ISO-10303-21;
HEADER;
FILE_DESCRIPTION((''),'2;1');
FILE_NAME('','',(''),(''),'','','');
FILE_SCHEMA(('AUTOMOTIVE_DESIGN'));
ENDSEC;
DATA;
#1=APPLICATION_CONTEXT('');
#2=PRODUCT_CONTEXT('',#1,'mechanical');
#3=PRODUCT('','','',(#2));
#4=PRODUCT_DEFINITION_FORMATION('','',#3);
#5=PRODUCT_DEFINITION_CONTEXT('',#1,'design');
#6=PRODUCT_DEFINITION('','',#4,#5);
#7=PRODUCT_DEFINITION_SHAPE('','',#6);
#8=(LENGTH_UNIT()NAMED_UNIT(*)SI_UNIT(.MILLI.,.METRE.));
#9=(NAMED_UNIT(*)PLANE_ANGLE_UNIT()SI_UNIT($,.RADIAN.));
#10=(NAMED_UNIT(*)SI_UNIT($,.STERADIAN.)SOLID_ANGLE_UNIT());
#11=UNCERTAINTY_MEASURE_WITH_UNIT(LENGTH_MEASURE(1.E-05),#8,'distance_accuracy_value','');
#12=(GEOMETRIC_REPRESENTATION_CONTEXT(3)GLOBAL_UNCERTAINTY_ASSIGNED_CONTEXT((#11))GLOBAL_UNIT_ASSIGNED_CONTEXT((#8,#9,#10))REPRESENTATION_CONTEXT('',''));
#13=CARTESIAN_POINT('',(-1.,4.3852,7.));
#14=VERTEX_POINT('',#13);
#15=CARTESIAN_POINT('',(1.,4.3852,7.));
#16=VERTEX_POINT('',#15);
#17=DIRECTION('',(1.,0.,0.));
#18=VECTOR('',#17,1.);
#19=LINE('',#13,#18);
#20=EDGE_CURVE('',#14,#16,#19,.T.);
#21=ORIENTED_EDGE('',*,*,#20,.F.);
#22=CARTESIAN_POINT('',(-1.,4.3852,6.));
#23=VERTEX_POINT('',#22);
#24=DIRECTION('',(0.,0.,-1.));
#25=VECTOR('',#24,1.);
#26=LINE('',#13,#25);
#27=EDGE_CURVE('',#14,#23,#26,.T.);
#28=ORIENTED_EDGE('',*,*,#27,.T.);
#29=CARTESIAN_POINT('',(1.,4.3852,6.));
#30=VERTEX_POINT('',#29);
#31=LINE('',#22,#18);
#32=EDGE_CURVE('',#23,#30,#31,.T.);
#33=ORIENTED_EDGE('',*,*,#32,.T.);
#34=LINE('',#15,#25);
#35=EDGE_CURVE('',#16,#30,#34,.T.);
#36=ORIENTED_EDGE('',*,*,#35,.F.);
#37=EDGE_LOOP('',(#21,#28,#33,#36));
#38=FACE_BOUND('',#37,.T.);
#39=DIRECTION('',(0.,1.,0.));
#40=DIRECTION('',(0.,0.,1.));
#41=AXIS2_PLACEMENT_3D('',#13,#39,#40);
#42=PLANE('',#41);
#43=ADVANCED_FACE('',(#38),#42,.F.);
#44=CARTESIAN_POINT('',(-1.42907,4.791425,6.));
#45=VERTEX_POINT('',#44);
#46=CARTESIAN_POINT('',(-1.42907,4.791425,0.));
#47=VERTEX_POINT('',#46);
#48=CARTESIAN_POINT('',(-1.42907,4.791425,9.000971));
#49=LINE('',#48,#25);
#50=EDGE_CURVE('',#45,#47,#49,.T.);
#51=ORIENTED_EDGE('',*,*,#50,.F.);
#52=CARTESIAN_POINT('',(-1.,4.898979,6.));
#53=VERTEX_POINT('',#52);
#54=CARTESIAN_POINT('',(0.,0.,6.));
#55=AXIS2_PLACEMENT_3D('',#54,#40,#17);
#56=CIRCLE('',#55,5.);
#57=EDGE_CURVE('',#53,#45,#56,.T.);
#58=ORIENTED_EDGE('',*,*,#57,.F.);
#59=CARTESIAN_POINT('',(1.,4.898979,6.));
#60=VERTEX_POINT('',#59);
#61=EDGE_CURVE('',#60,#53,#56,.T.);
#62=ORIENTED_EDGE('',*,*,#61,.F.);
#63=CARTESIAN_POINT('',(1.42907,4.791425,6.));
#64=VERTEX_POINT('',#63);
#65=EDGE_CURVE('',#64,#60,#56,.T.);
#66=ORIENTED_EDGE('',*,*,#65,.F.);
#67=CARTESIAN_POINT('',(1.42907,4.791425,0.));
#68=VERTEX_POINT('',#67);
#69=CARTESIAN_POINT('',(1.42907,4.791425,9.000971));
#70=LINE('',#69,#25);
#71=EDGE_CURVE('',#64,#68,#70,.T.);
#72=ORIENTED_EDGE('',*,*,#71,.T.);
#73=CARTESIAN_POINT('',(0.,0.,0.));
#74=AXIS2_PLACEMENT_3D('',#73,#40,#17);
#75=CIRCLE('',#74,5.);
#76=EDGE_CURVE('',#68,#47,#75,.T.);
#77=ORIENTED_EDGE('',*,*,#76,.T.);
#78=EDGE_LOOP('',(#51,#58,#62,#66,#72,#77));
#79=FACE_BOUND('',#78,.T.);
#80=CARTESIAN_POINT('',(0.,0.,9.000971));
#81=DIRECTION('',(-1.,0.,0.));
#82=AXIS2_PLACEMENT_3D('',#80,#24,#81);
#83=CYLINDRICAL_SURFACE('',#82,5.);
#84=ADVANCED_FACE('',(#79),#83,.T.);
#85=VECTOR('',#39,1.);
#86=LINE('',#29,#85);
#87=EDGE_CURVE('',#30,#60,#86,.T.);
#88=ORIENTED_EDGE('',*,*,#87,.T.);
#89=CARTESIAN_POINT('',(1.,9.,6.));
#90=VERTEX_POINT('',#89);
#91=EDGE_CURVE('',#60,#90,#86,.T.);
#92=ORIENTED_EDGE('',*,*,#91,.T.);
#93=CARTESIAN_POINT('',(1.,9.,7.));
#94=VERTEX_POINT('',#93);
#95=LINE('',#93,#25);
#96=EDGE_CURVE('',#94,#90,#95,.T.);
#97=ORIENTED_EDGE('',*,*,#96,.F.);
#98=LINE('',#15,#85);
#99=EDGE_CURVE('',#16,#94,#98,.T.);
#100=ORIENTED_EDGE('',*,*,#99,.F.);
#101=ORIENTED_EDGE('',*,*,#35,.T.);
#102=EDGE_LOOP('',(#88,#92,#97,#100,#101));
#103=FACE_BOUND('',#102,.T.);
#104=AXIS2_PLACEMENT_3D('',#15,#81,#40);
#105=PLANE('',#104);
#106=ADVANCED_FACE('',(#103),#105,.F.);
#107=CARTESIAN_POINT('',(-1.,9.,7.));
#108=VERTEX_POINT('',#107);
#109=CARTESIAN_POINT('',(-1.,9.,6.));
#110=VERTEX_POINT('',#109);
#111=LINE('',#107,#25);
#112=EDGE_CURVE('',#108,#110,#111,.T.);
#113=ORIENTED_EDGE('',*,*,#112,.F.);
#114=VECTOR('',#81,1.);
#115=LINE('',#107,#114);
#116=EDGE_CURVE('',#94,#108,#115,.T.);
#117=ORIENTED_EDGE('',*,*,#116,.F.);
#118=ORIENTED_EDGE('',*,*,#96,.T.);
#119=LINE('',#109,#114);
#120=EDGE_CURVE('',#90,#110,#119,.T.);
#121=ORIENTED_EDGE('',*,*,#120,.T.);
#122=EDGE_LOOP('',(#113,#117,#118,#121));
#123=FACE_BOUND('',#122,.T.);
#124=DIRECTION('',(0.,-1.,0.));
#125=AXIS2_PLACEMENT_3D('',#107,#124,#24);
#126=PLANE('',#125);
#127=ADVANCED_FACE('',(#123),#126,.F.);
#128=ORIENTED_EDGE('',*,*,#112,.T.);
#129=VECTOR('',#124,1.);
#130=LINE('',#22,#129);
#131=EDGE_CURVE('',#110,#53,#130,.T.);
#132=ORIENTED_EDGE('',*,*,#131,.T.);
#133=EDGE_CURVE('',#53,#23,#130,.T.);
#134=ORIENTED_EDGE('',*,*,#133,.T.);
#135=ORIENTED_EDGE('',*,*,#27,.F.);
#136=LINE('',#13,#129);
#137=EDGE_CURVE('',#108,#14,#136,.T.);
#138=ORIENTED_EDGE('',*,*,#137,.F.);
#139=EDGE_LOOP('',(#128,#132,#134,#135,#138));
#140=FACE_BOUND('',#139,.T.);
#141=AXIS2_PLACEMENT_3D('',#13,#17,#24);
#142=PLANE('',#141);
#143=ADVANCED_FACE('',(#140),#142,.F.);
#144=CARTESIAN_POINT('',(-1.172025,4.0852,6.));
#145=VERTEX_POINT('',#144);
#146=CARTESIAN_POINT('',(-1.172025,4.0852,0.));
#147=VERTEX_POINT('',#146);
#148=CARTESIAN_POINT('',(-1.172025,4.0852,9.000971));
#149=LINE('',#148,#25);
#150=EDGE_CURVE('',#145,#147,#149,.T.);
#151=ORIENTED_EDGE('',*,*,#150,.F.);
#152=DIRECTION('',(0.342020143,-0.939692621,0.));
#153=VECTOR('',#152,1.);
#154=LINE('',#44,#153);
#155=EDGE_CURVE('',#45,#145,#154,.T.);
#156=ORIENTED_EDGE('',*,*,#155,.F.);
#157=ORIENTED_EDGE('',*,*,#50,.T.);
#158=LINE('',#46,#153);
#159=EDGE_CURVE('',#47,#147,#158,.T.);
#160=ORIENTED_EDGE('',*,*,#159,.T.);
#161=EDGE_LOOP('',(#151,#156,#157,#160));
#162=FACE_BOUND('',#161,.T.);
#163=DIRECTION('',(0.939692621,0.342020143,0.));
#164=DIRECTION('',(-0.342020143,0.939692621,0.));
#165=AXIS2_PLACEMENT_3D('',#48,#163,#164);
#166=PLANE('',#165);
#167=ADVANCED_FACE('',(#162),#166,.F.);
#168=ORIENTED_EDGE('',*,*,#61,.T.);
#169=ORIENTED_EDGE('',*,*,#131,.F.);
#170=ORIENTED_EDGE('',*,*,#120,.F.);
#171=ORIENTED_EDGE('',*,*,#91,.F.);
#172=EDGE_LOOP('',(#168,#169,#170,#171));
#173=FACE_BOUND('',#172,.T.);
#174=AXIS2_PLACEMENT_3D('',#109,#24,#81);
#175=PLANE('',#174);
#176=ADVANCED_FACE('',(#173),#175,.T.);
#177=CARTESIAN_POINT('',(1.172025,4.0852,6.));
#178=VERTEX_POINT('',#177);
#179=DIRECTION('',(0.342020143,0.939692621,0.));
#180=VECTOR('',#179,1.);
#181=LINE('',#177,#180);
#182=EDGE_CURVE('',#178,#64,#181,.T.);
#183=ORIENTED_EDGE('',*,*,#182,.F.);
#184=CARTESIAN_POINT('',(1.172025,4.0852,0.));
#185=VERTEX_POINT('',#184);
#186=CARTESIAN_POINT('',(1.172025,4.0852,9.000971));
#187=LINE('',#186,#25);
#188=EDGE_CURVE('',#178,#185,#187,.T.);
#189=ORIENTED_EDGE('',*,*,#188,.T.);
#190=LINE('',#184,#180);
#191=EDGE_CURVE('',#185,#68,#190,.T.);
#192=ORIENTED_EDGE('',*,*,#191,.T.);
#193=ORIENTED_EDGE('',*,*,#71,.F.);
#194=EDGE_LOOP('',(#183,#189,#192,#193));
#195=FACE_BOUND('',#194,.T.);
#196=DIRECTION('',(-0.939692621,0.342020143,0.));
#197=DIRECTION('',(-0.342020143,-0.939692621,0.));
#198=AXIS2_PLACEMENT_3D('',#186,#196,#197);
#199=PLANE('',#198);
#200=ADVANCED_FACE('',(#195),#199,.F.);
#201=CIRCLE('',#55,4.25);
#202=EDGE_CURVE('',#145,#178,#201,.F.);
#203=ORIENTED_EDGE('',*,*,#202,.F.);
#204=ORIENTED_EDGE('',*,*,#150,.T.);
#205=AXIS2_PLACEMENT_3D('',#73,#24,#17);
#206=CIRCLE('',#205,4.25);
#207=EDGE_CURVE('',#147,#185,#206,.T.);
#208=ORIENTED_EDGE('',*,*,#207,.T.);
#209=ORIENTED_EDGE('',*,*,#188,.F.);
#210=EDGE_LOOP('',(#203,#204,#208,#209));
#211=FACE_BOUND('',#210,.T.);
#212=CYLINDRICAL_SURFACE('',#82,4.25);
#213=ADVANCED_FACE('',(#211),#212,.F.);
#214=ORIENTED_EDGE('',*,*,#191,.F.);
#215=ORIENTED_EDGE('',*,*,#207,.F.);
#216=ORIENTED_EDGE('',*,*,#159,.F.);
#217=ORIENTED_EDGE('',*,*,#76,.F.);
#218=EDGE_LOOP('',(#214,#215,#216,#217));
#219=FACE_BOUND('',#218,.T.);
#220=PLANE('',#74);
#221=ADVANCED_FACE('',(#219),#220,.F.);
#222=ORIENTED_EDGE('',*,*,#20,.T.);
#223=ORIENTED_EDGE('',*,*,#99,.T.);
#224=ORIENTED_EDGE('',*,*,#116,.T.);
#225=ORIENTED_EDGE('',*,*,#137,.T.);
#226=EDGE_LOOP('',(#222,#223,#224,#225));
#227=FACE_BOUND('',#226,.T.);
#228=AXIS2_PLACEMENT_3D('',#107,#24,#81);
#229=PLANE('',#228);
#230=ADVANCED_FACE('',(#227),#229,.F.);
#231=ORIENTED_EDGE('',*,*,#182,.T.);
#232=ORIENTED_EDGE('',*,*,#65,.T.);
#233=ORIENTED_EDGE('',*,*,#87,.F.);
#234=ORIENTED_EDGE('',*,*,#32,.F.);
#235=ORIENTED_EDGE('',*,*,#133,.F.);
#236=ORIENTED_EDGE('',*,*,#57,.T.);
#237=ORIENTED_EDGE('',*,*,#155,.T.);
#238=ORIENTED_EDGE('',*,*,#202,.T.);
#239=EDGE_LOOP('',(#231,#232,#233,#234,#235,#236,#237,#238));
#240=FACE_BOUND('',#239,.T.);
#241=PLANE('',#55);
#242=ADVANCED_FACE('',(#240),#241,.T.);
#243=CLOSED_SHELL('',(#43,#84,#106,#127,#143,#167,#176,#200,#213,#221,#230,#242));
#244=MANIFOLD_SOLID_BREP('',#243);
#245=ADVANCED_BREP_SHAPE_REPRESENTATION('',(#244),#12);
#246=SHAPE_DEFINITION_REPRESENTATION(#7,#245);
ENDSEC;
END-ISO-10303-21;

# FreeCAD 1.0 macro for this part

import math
import FreeCAD as App
import Part
import Sketcher
from FreeCAD import Vector
Q = App.Units.Quantity

doc = App.newDocument("Part")
body = doc.addObject("PartDesign::Body", "Body")

# Sketch on XY plane
sketch1 = body.newObject("Sketcher::SketchObject", "Sketch")
sketch1.AttachmentSupport = (doc.getObject("XY_Plane"), [""])
sketch1.MapMode = "FlatFace"
sketch1.addGeometry([
    Part.LineSegment(Vector(-1.4, 4.8, 0), Vector(-1.2, 4.1, 0)),
    Part.ArcOfCircle(Part.Circle(Vector(0, 0, 0), Vector(0, 0, 1), 4.2), math.radians(74), math.radians(106)),
    Part.LineSegment(Vector(1.2, 4.1, 0), Vector(1.4, 4.8, 0)),
    Part.ArcOfCircle(Part.Circle(Vector(0, 0, 0), Vector(0, 0, 1), 5), math.radians(73), math.radians(107)),
], False)
sketch1.addConstraint([
    Sketcher.Constraint("Coincident", 0, 2, 1, 2),
    Sketcher.Constraint("Coincident", 1, 1, 2, 1),
    Sketcher.Constraint("Coincident", 2, 2, 3, 1),
    Sketcher.Constraint("Coincident", 3, 2, 0, 1),
    Sketcher.Constraint("Coincident", 1, 3, -1, 1),
    Sketcher.Constraint("Coincident", 3, 3, -1, 1),
    Sketcher.Constraint("Horizontal", 0, 2, 1, 1),
    Sketcher.Constraint("Horizontal", 2, 2, 3, 2),
    Sketcher.Constraint("Radius", 3, Q("5 mm")),
    Sketcher.Constraint("Angle", 0, Q("-70 deg")),
    Sketcher.Constraint("Radius", 1, Q("4.25 mm")),
    Sketcher.Constraint("DistanceY", -1, 1, 0, 2, Q("4.0852 mm")),
])
pad1 = body.newObject("PartDesign::Pad", "Pad")
pad1.Profile = sketch1
pad1.Length = 6

# Sketch on XY plane
sketch2 = body.newObject("Sketcher::SketchObject", "Sketch001")
sketch2.AttachmentSupport = (doc.getObject("XY_Plane"), [""])
sketch2.MapMode = "FlatFace"
sketch2.AttachmentOffset = App.Placement(Vector(0, 0, 6), App.Rotation())
sketch2.addGeometry([
    Part.LineSegment(Vector(-1, 9, 0), Vector(-1, 4.4, 0)),
    Part.LineSegment(Vector(-1, 4.4, 0), Vector(1, 4.4, 0)),
    Part.LineSegment(Vector(1, 4.4, 0), Vector(1, 9, 0)),
    Part.LineSegment(Vector(1, 9, 0), Vector(-1, 9, 0)),
], False)
sketch2.addConstraint([
    Sketcher.Constraint("Coincident", 0, 2, 1, 1),
    Sketcher.Constraint("Coincident", 1, 2, 2, 1),
    Sketcher.Constraint("Coincident", 2, 2, 3, 1),
    Sketcher.Constraint("Coincident", 3, 2, 0, 1),
    Sketcher.Constraint("Vertical", 0),
    Sketcher.Constraint("Horizontal", 1),
    Sketcher.Constraint("Vertical", 2),
    Sketcher.Constraint("Horizontal", 3),
    Sketcher.Constraint("DistanceX", 1, 1, 1, 2, Q("2 mm")),
    Sketcher.Constraint("DistanceX", 0, 2, -1, 1, Q("1 mm")),
    Sketcher.Constraint("DistanceY", -1, 1, 2, 2, Q("9 mm")),
    Sketcher.Constraint("DistanceY", 0, 2, 0, 1, Q("4.6148 mm")),
])
pad2 = body.newObject("PartDesign::Pad", "Pad001")
pad2.Profile = sketch2
pad2.Length = 1

doc.recompute()
